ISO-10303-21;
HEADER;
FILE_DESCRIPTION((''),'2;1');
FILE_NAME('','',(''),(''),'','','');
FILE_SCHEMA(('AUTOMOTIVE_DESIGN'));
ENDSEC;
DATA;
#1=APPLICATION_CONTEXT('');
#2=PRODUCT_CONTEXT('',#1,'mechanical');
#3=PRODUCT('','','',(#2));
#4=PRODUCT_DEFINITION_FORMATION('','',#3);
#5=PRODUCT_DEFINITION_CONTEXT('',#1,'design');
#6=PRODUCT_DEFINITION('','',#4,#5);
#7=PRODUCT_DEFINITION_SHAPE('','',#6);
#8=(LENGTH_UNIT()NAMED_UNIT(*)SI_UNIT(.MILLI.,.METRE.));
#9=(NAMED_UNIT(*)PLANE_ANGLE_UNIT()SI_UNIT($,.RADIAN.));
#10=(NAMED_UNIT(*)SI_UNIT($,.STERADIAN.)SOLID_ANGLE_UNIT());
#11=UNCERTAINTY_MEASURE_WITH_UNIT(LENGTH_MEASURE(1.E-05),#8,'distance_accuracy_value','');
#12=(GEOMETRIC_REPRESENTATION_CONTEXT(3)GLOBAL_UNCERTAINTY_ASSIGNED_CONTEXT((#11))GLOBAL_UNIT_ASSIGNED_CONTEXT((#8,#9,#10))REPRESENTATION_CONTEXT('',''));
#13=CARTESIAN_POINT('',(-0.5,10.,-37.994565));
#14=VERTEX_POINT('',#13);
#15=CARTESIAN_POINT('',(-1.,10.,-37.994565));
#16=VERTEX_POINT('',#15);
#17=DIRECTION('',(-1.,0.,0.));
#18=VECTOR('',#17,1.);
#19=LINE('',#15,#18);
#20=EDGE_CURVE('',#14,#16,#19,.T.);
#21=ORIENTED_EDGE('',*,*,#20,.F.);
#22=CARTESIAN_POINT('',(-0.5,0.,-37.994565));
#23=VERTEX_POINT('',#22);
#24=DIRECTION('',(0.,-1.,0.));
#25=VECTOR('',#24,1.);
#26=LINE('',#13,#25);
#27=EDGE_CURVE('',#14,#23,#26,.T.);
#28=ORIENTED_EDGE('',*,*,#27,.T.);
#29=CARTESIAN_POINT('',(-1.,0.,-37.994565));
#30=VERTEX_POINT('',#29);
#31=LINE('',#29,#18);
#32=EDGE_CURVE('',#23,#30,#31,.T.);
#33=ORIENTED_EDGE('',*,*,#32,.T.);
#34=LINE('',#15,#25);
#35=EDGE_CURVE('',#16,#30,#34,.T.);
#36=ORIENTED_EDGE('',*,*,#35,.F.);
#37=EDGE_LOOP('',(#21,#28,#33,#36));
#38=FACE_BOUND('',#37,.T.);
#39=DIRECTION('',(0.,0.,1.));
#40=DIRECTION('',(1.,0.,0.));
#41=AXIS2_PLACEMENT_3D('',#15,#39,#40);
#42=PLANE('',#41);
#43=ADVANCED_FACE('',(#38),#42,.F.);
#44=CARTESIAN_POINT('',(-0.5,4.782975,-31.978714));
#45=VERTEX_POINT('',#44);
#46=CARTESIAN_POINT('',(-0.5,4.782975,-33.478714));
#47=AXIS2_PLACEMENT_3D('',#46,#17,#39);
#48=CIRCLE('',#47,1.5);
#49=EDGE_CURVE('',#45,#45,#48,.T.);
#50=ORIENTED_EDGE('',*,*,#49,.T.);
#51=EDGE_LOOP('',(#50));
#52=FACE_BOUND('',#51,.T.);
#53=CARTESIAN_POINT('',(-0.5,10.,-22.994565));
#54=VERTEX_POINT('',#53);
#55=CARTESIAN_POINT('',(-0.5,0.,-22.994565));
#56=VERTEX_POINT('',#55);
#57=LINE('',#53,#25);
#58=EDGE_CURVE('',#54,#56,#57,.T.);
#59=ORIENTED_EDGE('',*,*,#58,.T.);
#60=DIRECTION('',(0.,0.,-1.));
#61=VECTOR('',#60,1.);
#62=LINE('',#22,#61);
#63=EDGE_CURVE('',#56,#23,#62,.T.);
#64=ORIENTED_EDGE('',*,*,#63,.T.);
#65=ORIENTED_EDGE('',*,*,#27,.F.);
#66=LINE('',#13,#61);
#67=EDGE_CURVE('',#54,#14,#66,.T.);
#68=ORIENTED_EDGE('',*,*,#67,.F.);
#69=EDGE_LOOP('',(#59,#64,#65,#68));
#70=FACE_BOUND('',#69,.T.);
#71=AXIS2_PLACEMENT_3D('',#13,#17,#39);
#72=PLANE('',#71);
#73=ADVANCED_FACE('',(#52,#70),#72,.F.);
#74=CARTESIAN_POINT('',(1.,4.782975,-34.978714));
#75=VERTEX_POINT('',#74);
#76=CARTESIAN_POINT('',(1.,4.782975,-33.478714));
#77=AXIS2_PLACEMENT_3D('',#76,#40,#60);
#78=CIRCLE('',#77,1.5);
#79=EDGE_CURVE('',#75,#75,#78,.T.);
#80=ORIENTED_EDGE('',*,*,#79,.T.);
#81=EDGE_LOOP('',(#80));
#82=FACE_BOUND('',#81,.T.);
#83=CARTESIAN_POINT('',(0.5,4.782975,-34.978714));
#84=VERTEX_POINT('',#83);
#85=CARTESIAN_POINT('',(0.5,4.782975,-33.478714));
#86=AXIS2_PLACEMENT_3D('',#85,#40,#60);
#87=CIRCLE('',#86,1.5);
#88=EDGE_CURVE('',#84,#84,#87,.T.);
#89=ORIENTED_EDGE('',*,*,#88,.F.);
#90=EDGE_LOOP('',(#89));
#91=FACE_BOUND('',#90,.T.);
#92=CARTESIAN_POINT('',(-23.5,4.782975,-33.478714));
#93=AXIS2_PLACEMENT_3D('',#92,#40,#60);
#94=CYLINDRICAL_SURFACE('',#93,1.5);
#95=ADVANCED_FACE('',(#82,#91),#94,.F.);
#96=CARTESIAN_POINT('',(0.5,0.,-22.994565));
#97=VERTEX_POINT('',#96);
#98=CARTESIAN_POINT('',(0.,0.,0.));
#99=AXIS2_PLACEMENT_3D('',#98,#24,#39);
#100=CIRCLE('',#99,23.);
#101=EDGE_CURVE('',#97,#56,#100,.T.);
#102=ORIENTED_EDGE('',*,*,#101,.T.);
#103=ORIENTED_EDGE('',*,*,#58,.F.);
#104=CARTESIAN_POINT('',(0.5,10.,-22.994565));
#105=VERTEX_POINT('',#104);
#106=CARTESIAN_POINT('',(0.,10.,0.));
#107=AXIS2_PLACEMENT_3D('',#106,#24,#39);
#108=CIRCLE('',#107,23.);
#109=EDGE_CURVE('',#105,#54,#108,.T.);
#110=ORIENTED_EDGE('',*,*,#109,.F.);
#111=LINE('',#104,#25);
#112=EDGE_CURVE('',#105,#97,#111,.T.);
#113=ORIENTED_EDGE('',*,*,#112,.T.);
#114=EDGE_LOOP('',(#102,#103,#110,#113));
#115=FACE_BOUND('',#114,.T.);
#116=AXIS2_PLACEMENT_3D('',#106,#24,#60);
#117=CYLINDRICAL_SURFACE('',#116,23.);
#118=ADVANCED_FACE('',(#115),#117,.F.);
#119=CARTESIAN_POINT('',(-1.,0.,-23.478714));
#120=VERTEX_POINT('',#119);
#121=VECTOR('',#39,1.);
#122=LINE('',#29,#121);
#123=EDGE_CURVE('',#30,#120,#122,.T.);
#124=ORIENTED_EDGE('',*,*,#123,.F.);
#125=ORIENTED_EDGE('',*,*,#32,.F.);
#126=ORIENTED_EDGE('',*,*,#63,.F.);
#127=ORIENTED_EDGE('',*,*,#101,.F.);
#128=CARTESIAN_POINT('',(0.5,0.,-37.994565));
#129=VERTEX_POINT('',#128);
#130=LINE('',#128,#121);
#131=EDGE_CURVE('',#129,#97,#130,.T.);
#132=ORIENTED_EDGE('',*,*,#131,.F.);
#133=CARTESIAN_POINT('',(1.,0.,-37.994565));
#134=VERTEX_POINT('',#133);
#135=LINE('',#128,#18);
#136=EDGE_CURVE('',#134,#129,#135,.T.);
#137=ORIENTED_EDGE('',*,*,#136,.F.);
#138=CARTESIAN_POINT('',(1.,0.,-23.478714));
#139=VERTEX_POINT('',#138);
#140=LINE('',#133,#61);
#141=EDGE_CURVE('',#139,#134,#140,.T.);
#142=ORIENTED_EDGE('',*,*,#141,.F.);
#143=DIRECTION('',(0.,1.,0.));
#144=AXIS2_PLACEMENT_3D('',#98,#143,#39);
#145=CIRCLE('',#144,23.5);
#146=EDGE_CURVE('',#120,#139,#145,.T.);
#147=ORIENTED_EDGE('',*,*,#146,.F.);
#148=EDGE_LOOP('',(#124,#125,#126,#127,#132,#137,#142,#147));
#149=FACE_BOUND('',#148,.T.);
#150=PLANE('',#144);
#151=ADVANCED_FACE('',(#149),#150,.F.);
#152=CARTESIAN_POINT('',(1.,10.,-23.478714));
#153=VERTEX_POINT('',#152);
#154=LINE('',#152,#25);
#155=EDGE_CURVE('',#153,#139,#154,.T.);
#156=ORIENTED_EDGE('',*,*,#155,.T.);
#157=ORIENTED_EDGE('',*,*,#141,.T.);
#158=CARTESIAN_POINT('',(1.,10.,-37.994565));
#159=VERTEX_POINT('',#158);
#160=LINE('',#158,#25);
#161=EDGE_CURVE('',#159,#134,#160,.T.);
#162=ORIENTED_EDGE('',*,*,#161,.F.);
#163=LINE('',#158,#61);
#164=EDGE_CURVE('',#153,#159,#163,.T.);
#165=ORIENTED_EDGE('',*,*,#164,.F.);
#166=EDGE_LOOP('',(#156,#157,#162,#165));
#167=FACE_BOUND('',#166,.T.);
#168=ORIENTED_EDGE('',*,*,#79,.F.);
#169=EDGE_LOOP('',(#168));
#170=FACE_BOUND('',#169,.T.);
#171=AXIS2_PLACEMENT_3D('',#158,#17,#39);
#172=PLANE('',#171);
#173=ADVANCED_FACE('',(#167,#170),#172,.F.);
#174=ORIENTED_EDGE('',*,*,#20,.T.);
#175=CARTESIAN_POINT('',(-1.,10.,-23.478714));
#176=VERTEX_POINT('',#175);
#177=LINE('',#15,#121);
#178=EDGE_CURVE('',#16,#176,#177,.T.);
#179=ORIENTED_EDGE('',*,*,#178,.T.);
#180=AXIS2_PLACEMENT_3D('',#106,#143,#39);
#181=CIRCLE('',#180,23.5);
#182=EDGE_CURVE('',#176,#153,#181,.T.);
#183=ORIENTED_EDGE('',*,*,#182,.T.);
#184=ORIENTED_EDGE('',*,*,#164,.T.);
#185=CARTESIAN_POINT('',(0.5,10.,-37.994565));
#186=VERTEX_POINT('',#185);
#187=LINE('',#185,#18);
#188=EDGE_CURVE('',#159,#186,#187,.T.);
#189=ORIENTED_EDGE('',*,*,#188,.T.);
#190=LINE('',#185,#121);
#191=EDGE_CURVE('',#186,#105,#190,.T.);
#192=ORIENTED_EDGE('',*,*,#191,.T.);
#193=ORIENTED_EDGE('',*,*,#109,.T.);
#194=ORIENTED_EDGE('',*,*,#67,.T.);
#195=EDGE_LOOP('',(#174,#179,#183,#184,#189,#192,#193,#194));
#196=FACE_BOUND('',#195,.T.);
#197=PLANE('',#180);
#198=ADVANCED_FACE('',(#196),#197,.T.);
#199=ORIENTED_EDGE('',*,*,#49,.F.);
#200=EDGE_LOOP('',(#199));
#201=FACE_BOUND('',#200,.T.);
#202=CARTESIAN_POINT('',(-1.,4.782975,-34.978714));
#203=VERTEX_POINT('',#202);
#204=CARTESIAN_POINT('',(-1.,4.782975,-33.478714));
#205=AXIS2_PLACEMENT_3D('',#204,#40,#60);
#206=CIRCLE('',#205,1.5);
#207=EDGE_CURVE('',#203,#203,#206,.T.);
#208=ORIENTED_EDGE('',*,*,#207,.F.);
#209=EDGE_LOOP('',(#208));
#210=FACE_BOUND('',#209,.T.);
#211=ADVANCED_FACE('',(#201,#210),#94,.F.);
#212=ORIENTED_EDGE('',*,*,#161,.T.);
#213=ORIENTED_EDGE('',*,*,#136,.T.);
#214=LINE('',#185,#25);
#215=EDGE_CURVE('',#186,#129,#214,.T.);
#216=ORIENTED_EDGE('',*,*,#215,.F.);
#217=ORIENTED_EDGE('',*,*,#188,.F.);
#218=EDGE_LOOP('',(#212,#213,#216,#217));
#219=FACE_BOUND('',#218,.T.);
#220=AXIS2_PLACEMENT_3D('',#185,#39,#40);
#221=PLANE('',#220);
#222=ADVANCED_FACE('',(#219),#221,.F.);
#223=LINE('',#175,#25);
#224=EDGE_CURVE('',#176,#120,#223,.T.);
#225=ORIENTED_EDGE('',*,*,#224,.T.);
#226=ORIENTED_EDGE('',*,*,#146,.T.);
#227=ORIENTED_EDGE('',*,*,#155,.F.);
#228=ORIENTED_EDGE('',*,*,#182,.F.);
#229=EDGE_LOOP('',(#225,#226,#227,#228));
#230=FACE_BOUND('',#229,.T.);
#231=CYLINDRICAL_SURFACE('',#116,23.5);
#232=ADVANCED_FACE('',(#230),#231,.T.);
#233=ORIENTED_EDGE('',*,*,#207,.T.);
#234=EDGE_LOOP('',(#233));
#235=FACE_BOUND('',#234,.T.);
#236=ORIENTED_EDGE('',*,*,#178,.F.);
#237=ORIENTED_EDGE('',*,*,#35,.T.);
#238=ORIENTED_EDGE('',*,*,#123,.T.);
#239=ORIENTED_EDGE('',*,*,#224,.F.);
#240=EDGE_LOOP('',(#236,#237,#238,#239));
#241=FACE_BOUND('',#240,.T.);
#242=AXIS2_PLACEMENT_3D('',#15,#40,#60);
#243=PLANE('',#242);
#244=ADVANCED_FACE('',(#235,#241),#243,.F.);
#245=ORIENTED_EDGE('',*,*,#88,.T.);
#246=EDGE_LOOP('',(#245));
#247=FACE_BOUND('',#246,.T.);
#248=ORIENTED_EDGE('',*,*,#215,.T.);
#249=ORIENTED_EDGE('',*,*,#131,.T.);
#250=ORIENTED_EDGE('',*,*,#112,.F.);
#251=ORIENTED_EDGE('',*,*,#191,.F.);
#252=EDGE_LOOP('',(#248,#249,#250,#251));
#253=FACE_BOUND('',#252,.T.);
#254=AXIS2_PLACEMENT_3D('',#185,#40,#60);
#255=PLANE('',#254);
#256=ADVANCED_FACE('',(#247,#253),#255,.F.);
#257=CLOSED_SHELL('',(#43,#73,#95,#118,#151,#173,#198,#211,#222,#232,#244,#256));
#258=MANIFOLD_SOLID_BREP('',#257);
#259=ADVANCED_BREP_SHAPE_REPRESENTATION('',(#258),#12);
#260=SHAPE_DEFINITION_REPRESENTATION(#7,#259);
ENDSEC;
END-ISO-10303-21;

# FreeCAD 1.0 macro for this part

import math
import FreeCAD as App
import Part
import Sketcher
from FreeCAD import Vector

doc = App.newDocument("Part")
body = doc.addObject("PartDesign::Body", "Body")

sketch1 = body.newObject("Sketcher::SketchObject", "Sketch")
sketch1.AttachmentSupport = (doc.getObject("XZ_Plane"), [""])
sketch1.MapMode = "FlatFace"
sketch1.addGeometry(Part.LineSegment(Vector(-0.5, -23, 0), Vector(-0.5, -38, 0)), False)
sketch1.addGeometry(Part.LineSegment(Vector(-0.5, -38, 0), Vector(-1, -38, 0)), False)
sketch1.addGeometry(Part.LineSegment(Vector(-1, -38, 0), Vector(-1, -23.5, 0)), False)
sketch1.addGeometry(Part.ArcOfCircle(Part.Circle(Vector(0, 0, 0), Vector(0, 0, 1), 23.5), math.radians(-88), math.radians(268)), False)
sketch1.addGeometry(Part.LineSegment(Vector(1, -23.5, 0), Vector(1, -38, 0)), False)
sketch1.addGeometry(Part.LineSegment(Vector(1, -38, 0), Vector(0.5, -38, 0)), False)
sketch1.addGeometry(Part.LineSegment(Vector(0.5, -38, 0), Vector(0.5, -23, 0)), False)
sketch1.addGeometry(Part.ArcOfCircle(Part.Circle(Vector(0, 0, 0), Vector(0, 0, 1), 23), math.radians(-89), math.radians(269)), False)
sketch1.addConstraint(Sketcher.Constraint("Coincident", 0, 2, 1, 1))
sketch1.addConstraint(Sketcher.Constraint("Coincident", 1, 2, 2, 1))
sketch1.addConstraint(Sketcher.Constraint("Coincident", 2, 2, 3, 2))
sketch1.addConstraint(Sketcher.Constraint("Coincident", 3, 1, 4, 1))
sketch1.addConstraint(Sketcher.Constraint("Coincident", 4, 2, 5, 1))
sketch1.addConstraint(Sketcher.Constraint("Coincident", 5, 2, 6, 1))
sketch1.addConstraint(Sketcher.Constraint("Coincident", 6, 2, 7, 1))
sketch1.addConstraint(Sketcher.Constraint("Coincident", 7, 2, 0, 1))
sketch1.addConstraint(Sketcher.Constraint("Vertical", 0))
sketch1.addConstraint(Sketcher.Constraint("Horizontal", 1))
sketch1.addConstraint(Sketcher.Constraint("Vertical", 2))
sketch1.addConstraint(Sketcher.Constraint("Vertical", 4))
sketch1.addConstraint(Sketcher.Constraint("Horizontal", 5))
sketch1.addConstraint(Sketcher.Constraint("Vertical", 6))
sketch1.addConstraint(Sketcher.Constraint("Coincident", 3, 3, -1, 1))
sketch1.addConstraint(Sketcher.Constraint("Coincident", 7, 3, -1, 1))
sketch1.addConstraint(Sketcher.Constraint("Symmetric", 1, 2, 4, 2, -2))
sketch1.addConstraint(Sketcher.Constraint("Horizontal", 6, 2, 7, 2))
sketch1.addConstraint(Sketcher.Constraint("Radius", 7, 23.0))
sketch1.addConstraint(Sketcher.Constraint("Radius", 3, 23.5))
sketch1.addConstraint(Sketcher.Constraint("DistanceY", 0, 2, 0, 1, 15.0))
sketch1.addConstraint(Sketcher.Constraint("DistanceX", 1, 2, 1, 1, 0.5))
sketch1.addConstraint(Sketcher.Constraint("DistanceX", 1, 2, -1, 1, 1.0))
pad1 = body.newObject("PartDesign::Pad", "Pad")
pad1.Profile = sketch1
pad1.Length = 10
pad1.Reversed = True

sketch2 = body.newObject("Sketcher::SketchObject", "Sketch001")
sketch2.AttachmentSupport = (doc.getObject("YZ_Plane"), [""])
sketch2.MapMode = "FlatFace"
sketch2.AttachmentOffset = App.Placement(Vector(0, 0, 1), App.Rotation())
sketch2.addGeometry(Part.Circle(Vector(4.8, -33.5, 0), Vector(0, 0, 1), 1.5), False)
sketch2.addConstraint(Sketcher.Constraint("Diameter", 0, 3.0))
sketch2.addConstraint(Sketcher.Constraint("DistanceX", -1, 1, 0, 3, 4.782975))
sketch2.addConstraint(Sketcher.Constraint("DistanceY", 0, 3, -1, 1, 33.478714))
pocket1 = body.newObject("PartDesign::Pocket", "Pocket")
pocket1.Profile = sketch2
pocket1.Type = "ThroughAll"

doc.recompute()
